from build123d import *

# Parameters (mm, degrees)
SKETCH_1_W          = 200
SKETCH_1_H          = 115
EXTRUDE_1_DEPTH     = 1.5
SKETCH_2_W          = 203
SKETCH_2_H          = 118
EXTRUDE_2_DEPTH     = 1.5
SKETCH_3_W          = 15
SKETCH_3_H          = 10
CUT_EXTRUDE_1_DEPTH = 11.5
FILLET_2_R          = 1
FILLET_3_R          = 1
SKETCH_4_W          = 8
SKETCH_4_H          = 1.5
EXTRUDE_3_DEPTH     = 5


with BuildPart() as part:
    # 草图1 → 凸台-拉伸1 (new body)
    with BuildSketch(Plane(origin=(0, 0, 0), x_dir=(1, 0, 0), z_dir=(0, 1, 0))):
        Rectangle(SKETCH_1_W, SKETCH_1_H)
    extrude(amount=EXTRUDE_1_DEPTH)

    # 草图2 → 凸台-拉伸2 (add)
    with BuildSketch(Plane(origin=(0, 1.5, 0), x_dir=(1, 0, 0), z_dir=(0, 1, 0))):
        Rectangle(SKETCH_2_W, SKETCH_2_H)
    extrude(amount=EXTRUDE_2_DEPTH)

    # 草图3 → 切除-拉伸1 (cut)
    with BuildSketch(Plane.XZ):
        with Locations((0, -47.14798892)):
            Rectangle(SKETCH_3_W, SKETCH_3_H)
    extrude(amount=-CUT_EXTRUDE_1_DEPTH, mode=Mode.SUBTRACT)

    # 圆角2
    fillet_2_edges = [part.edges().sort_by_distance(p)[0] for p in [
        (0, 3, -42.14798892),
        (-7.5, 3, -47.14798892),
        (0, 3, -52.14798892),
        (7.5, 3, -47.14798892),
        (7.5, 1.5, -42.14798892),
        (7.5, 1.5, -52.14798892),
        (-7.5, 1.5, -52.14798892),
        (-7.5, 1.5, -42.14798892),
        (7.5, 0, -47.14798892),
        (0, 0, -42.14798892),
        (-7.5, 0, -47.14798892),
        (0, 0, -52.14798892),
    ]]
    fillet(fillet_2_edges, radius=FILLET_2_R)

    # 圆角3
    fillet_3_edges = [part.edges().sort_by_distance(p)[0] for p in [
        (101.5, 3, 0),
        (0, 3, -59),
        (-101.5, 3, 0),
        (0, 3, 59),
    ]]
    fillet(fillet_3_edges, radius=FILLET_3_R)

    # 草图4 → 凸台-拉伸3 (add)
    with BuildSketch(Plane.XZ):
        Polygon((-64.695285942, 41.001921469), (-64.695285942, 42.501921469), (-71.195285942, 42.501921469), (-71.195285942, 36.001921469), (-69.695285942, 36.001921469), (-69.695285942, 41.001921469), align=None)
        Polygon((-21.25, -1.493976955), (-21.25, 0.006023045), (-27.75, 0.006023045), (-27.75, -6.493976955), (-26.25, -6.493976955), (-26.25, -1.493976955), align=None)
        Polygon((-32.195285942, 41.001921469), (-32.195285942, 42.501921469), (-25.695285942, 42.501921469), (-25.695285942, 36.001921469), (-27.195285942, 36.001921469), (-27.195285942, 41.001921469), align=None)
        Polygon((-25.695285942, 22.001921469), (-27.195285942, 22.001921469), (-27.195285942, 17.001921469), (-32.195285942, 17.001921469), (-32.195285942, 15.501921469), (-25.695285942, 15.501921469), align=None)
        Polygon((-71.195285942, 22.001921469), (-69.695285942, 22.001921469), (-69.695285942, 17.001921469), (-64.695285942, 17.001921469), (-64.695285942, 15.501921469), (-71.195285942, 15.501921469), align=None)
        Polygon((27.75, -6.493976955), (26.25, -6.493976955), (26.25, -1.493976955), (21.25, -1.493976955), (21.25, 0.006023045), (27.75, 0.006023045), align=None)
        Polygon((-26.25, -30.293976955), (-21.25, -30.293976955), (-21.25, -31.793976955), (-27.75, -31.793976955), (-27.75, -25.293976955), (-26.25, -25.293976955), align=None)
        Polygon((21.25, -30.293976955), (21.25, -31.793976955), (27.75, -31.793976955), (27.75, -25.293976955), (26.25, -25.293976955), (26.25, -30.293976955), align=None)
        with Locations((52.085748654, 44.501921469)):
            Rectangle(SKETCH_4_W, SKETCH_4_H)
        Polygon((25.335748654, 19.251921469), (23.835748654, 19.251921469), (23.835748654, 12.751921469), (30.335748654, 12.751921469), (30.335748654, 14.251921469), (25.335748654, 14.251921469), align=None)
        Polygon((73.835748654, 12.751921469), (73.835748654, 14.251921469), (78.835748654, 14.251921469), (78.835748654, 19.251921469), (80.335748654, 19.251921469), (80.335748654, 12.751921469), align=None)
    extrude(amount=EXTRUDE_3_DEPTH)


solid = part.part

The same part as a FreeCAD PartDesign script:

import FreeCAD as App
import Part
import Sketcher


def edges_at(feature, points):
    """Names of the edges that pass closest to the given points."""
    edges = feature.Shape.Edges
    near = lambda p: min(range(len(edges)), key=lambda i: edges[i].distToShape(Part.Vertex(*p))[0])
    return sorted({f"Edge{near(p) + 1}" for p in points})


def add_polygon(sketch, points):
    """Adds a closed chain of lines whose ends are joined by coincident constraints."""
    first, n = sketch.GeometryCount, len(points)
    for a, b in zip(points, points[1:] + points[:1]):
        sketch.addGeometry(Part.LineSegment(App.Vector(*a, 0), App.Vector(*b, 0)), False)
    for i in range(n):
        sketch.addConstraint(Sketcher.Constraint("Coincident", first + i, 2, first + (i + 1) % n, 1))

doc = App.newDocument("Part")
body = doc.addObject("PartDesign::Body", "Body")

# Sketch on XZ plane
sketch1 = body.newObject("Sketcher::SketchObject", "Sketch")
sketch1.AttachmentSupport = (doc.getObject("XZ_Plane"), [""])
sketch1.MapMode = "FlatFace"
add_polygon(sketch1, [(-100, -57.5), (-100, 57.5), (100, 57.5), (100, -57.5)])  # lines 0-3
sketch1.addConstraint(Sketcher.Constraint("Vertical", 0))
sketch1.addConstraint(Sketcher.Constraint("Horizontal", 1))
sketch1.addConstraint(Sketcher.Constraint("Vertical", 2))
sketch1.addConstraint(Sketcher.Constraint("Horizontal", 3))
sketch1.addConstraint(Sketcher.Constraint("Symmetric", 0, 2, 2, 2, -1, 1))
sketch1.addConstraint(Sketcher.Constraint("DistanceX", 1, 1, 1, 2, 200.0))
sketch1.addConstraint(Sketcher.Constraint("DistanceY", 0, 1, 0, 2, 115.0))
pad1 = body.newObject("PartDesign::Pad", "Pad")
pad1.Profile = sketch1
pad1.Length = 1.5
pad1.Reversed = True

# Sketch on XZ plane
sketch2 = body.newObject("Sketcher::SketchObject", "Sketch001")
sketch2.AttachmentSupport = (doc.getObject("XZ_Plane"), [""])
sketch2.MapMode = "FlatFace"
sketch2.AttachmentOffset = App.Placement(App.Vector(0, 0, -1.5), App.Rotation())
add_polygon(sketch2, [(-101.5, -59), (-101.5, 59), (101.5, 59), (101.5, -59)])  # lines 0-3
sketch2.addConstraint(Sketcher.Constraint("Vertical", 0))
sketch2.addConstraint(Sketcher.Constraint("Horizontal", 1))
sketch2.addConstraint(Sketcher.Constraint("Vertical", 2))
sketch2.addConstraint(Sketcher.Constraint("Horizontal", 3))
sketch2.addConstraint(Sketcher.Constraint("Symmetric", 0, 2, 2, 2, -1, 1))
sketch2.addConstraint(Sketcher.Constraint("DistanceX", 1, 1, 1, 2, 203.0))
sketch2.addConstraint(Sketcher.Constraint("DistanceY", 0, 1, 0, 2, 118.0))
pad2 = body.newObject("PartDesign::Pad", "Pad001")
pad2.Profile = sketch2
pad2.Length = 1.5
pad2.Reversed = True

# Sketch on XZ plane
sketch3 = body.newObject("Sketcher::SketchObject", "Sketch002")
sketch3.AttachmentSupport = (doc.getObject("XZ_Plane"), [""])
sketch3.MapMode = "FlatFace"
add_polygon(sketch3, [(-7.5, -42.147989), (-7.5, -52.147989), (7.5, -52.147989), (7.5, -42.147989)])  # lines 0-3
sketch3.addConstraint(Sketcher.Constraint("Vertical", 0))
sketch3.addConstraint(Sketcher.Constraint("Horizontal", 1))
sketch3.addConstraint(Sketcher.Constraint("Vertical", 2))
sketch3.addConstraint(Sketcher.Constraint("Horizontal", 3))
sketch3.addConstraint(Sketcher.Constraint("DistanceX", 1, 1, 1, 2, 15.0))
sketch3.addConstraint(Sketcher.Constraint("DistanceY", 0, 2, 0, 1, 10.0))
sketch3.addConstraint(Sketcher.Constraint("DistanceX", 0, 2, -1, 1, 7.5))
sketch3.addConstraint(Sketcher.Constraint("DistanceY", 0, 2, -1, 1, 52.147989))
pocket1 = body.newObject("PartDesign::Pocket", "Pocket")
pocket1.Profile = sketch3
pocket1.Length = 11.5
doc.recompute()

fillet = body.newObject("PartDesign::Fillet", "Fillet")
fillet.Base = (pocket1, edges_at(pocket1, [
    (0, 3, -42.148),
    (-7.5, 3, -47.148),
    (0, 3, -52.148),
    (7.5, 3, -47.148),
    (7.5, 1.5, -42.148),
    (7.5, 1.5, -52.148),
    (-7.5, 1.5, -52.148),
    (-7.5, 1.5, -42.148),
    (7.5, 0, -47.148),
    (0, 0, -42.148),
    (-7.5, 0, -47.148),
    (0, 0, -52.148),
]))
fillet.Radius = 1
doc.recompute()

fillet2 = body.newObject("PartDesign::Fillet", "Fillet001")
fillet2.Base = (fillet, edges_at(fillet, [
    (101.5, 3, 0),
    (0, 3, -59),
    (-101.5, 3, 0),
    (0, 3, 59),
]))
fillet2.Radius = 1

# Sketch on XZ plane
sketch4 = body.newObject("Sketcher::SketchObject", "Sketch003")
sketch4.AttachmentSupport = (doc.getObject("XZ_Plane"), [""])
sketch4.MapMode = "FlatFace"
add_polygon(sketch4, [(-64.695286, 41.001921), (-64.695286, 42.501921), (-71.195286, 42.501921), (-71.195286, 36.001921), (-69.695286, 36.001921), (-69.695286, 41.001921)])  # lines 0-5
add_polygon(sketch4, [(-21.25, -1.493977), (-21.25, 0.006023), (-27.75, 0.006023), (-27.75, -6.493977), (-26.25, -6.493977), (-26.25, -1.493977)])  # lines 6-11
add_polygon(sketch4, [(-32.195286, 42.501921), (-32.195286, 41.001921), (-27.195286, 41.001921), (-27.195286, 36.001921), (-25.695286, 36.001921), (-25.695286, 42.501921)])  # lines 12-17
add_polygon(sketch4, [(-25.695286, 22.001921), (-27.195286, 22.001921), (-27.195286, 17.001921), (-32.195286, 17.001921), (-32.195286, 15.501921), (-25.695286, 15.501921)])  # lines 18-23
add_polygon(sketch4, [(-69.695286, 22.001921), (-71.195286, 22.001921), (-71.195286, 15.501921), (-64.695286, 15.501921), (-64.695286, 17.001921), (-69.695286, 17.001921)])  # lines 24-29
add_polygon(sketch4, [(26.25, -6.493977), (27.75, -6.493977), (27.75, 0.006023), (21.25, 0.006023), (21.25, -1.493977), (26.25, -1.493977)])  # lines 30-35
add_polygon(sketch4, [(-21.25, -30.293977), (-26.25, -30.293977), (-26.25, -25.293977), (-27.75, -25.293977), (-27.75, -31.793977), (-21.25, -31.793977)])  # lines 36-41
add_polygon(sketch4, [(21.25, -30.293977), (21.25, -31.793977), (27.75, -31.793977), (27.75, -25.293977), (26.25, -25.293977), (26.25, -30.293977)])  # lines 42-47
add_polygon(sketch4, [(48.085749, 45.251921), (48.085749, 43.751921), (56.085749, 43.751921), (56.085749, 45.251921)])  # lines 48-51
add_polygon(sketch4, [(25.335749, 19.251921), (23.835749, 19.251921), (23.835749, 12.751921), (30.335749, 12.751921), (30.335749, 14.251921), (25.335749, 14.251921)])  # lines 52-57
add_polygon(sketch4, [(73.835749, 14.251921), (73.835749, 12.751921), (80.335749, 12.751921), (80.335749, 19.251921), (78.835749, 19.251921), (78.835749, 14.251921)])  # lines 58-63
sketch4.addConstraint(Sketcher.Constraint("Vertical", 0))
sketch4.addConstraint(Sketcher.Constraint("Horizontal", 1))
sketch4.addConstraint(Sketcher.Constraint("Vertical", 2))
sketch4.addConstraint(Sketcher.Constraint("Horizontal", 3))
sketch4.addConstraint(Sketcher.Constraint("Vertical", 4))
sketch4.addConstraint(Sketcher.Constraint("Horizontal", 5))
sketch4.addConstraint(Sketcher.Constraint("Vertical", 6))
sketch4.addConstraint(Sketcher.Constraint("Horizontal", 7))
sketch4.addConstraint(Sketcher.Constraint("Vertical", 8))
sketch4.addConstraint(Sketcher.Constraint("Horizontal", 9))
sketch4.addConstraint(Sketcher.Constraint("Vertical", 10))
sketch4.addConstraint(Sketcher.Constraint("Horizontal", 11))
sketch4.addConstraint(Sketcher.Constraint("Vertical", 12))
sketch4.addConstraint(Sketcher.Constraint("Horizontal", 13))
sketch4.addConstraint(Sketcher.Constraint("Vertical", 14))
sketch4.addConstraint(Sketcher.Constraint("Horizontal", 15))
sketch4.addConstraint(Sketcher.Constraint("Vertical", 16))
sketch4.addConstraint(Sketcher.Constraint("Horizontal", 17))
sketch4.addConstraint(Sketcher.Constraint("Horizontal", 18))
sketch4.addConstraint(Sketcher.Constraint("Vertical", 19))
sketch4.addConstraint(Sketcher.Constraint("Horizontal", 20))
sketch4.addConstraint(Sketcher.Constraint("Vertical", 21))
sketch4.addConstraint(Sketcher.Constraint("Horizontal", 22))
sketch4.addConstraint(Sketcher.Constraint("Vertical", 23))
sketch4.addConstraint(Sketcher.Constraint("Horizontal", 24))
sketch4.addConstraint(Sketcher.Constraint("Vertical", 25))
sketch4.addConstraint(Sketcher.Constraint("Horizontal", 26))
sketch4.addConstraint(Sketcher.Constraint("Vertical", 27))
sketch4.addConstraint(Sketcher.Constraint("Horizontal", 28))
sketch4.addConstraint(Sketcher.Constraint("Vertical", 29))
sketch4.addConstraint(Sketcher.Constraint("Horizontal", 30))
sketch4.addConstraint(Sketcher.Constraint("Vertical", 31))
sketch4.addConstraint(Sketcher.Constraint("Horizontal", 32))
sketch4.addConstraint(Sketcher.Constraint("Vertical", 33))
sketch4.addConstraint(Sketcher.Constraint("Horizontal", 34))
sketch4.addConstraint(Sketcher.Constraint("Vertical", 35))
sketch4.addConstraint(Sketcher.Constraint("Horizontal", 36))
sketch4.addConstraint(Sketcher.Constraint("Vertical", 37))
sketch4.addConstraint(Sketcher.Constraint("Horizontal", 38))
sketch4.addConstraint(Sketcher.Constraint("Vertical", 39))
sketch4.addConstraint(Sketcher.Constraint("Horizontal", 40))
sketch4.addConstraint(Sketcher.Constraint("Vertical", 41))
sketch4.addConstraint(Sketcher.Constraint("Vertical", 42))
sketch4.addConstraint(Sketcher.Constraint("Horizontal", 43))
sketch4.addConstraint(Sketcher.Constraint("Vertical", 44))
sketch4.addConstraint(Sketcher.Constraint("Horizontal", 45))
sketch4.addConstraint(Sketcher.Constraint("Vertical", 46))
sketch4.addConstraint(Sketcher.Constraint("Horizontal", 47))
sketch4.addConstraint(Sketcher.Constraint("Vertical", 48))
sketch4.addConstraint(Sketcher.Constraint("Horizontal", 49))
sketch4.addConstraint(Sketcher.Constraint("Vertical", 50))
sketch4.addConstraint(Sketcher.Constraint("Horizontal", 51))
sketch4.addConstraint(Sketcher.Constraint("Horizontal", 52))
sketch4.addConstraint(Sketcher.Constraint("Vertical", 53))
sketch4.addConstraint(Sketcher.Constraint("Horizontal", 54))
sketch4.addConstraint(Sketcher.Constraint("Vertical", 55))
sketch4.addConstraint(Sketcher.Constraint("Horizontal", 56))
sketch4.addConstraint(Sketcher.Constraint("Vertical", 57))
sketch4.addConstraint(Sketcher.Constraint("Vertical", 58))
sketch4.addConstraint(Sketcher.Constraint("Horizontal", 59))
sketch4.addConstraint(Sketcher.Constraint("Vertical", 60))
sketch4.addConstraint(Sketcher.Constraint("Horizontal", 61))
sketch4.addConstraint(Sketcher.Constraint("Vertical", 62))
sketch4.addConstraint(Sketcher.Constraint("Horizontal", 63))
sketch4.addConstraint(Sketcher.Constraint("Symmetric", 8, 2, 30, 2, -2))
sketch4.addConstraint(Sketcher.Constraint("Symmetric", 6, 2, 32, 2, -2))
sketch4.addConstraint(Sketcher.Constraint("Symmetric", 10, 2, 34, 2, -2))
sketch4.addConstraint(Sketcher.Constraint("Symmetric", 40, 2, 42, 2, -2))
sketch4.addConstraint(Sketcher.Constraint("Symmetric", 38, 2, 44, 2, -2))
sketch4.addConstraint(Sketcher.Constraint("Symmetric", 36, 2, 46, 2, -2))
sketch4.addConstraint(Sketcher.Constraint("Horizontal", 5, 2, 12, 2))
sketch4.addConstraint(Sketcher.Constraint("Horizontal", 3, 2, 14, 2))
sketch4.addConstraint(Sketcher.Constraint("Horizontal", 1, 2, 16, 2))
sketch4.addConstraint(Sketcher.Constraint("Horizontal", 23, 2, 24, 2))
sketch4.addConstraint(Sketcher.Constraint("Horizontal", 22, 2, 25, 2))
sketch4.addConstraint(Sketcher.Constraint("Horizontal", 20, 2, 27, 2))
sketch4.addConstraint(Sketcher.Constraint("Horizontal", 54, 2, 58, 2))
sketch4.addConstraint(Sketcher.Constraint("Horizontal", 57, 2, 60, 2))
sketch4.addConstraint(Sketcher.Constraint("Horizontal", 56, 2, 62, 2))
sketch4.addConstraint(Sketcher.Constraint("Vertical", 14, 2, 18, 2))
sketch4.addConstraint(Sketcher.Constraint("Vertical", 17, 2, 20, 2))
sketch4.addConstraint(Sketcher.Constraint("Vertical", 16, 2, 22, 2))
sketch4.addConstraint(Sketcher.Constraint("Vertical", 2, 2, 24, 2))
sketch4.addConstraint(Sketcher.Constraint("Vertical", 5, 2, 26, 2))
sketch4.addConstraint(Sketcher.Constraint("Vertical", 4, 2, 28, 2))
sketch4.addConstraint(Sketcher.Constraint("Vertical", 10, 2, 36, 2))
sketch4.addConstraint(Sketcher.Constraint("Vertical", 8, 2, 38, 2))
sketch4.addConstraint(Sketcher.Constraint("Vertical", 11, 2, 40, 2))
sketch4.addConstraint(Sketcher.Constraint("Equal", 1, 7))
sketch4.addConstraint(Sketcher.Constraint("Equal", 3, 9))
sketch4.addConstraint(Sketcher.Constraint("Equal", 11, 13))
sketch4.addConstraint(Sketcher.Constraint("Equal", 9, 15))
sketch4.addConstraint(Sketcher.Constraint("Equal", 45, 52))
sketch4.addConstraint(Sketcher.Constraint("Equal", 43, 54))
sketch4.addConstraint(Sketcher.Constraint("Equal", 54, 59))
sketch4.addConstraint(Sketcher.Constraint("Equal", 52, 61))
sketch4.addConstraint(Sketcher.Constraint("Equal", 61, 0))
sketch4.addConstraint(Sketcher.Constraint("Equal", 59, 2))
sketch4.addConstraint(Sketcher.Constraint("Equal", 0, 6))
sketch4.addConstraint(Sketcher.Constraint("Equal", 2, 8))
sketch4.addConstraint(Sketcher.Constraint("Equal", 14, 19))
sketch4.addConstraint(Sketcher.Constraint("Equal", 12, 21))
sketch4.addConstraint(Sketcher.Constraint("Equal", 35, 37))
sketch4.addConstraint(Sketcher.Constraint("Equal", 31, 39))
sketch4.addConstraint(Sketcher.Constraint("Equal", 42, 48))
sketch4.addConstraint(Sketcher.Constraint("Equal", 44, 53))
sketch4.addConstraint(Sketcher.Constraint("Equal", 50, 55))
sketch4.addConstraint(Sketcher.Constraint("DistanceX", 5, 1, 5, 2, 5.0))
sketch4.addConstraint(Sketcher.Constraint("DistanceX", 49, 1, 49, 2, 8.0))
sketch4.addConstraint(Sketcher.Constraint("DistanceX", 1, 2, 1, 1, 6.5))
sketch4.addConstraint(Sketcher.Constraint("DistanceX", 6, 2, -1, 1, 21.25))
sketch4.addConstraint(Sketcher.Constraint("DistanceY", -1, 1, 0, 2, 42.501921))
sketch4.addConstraint(Sketcher.Constraint("DistanceY", -1, 1, 18, 2, 22.001921))
sketch4.addConstraint(Sketcher.Constraint("DistanceX", -1, 1, 48, 2, 48.085749))
sketch4.addConstraint(Sketcher.Constraint("DistanceY", -1, 1, 48, 2, 43.751921))
sketch4.addConstraint(Sketcher.Constraint("DistanceX", -1, 1, 52, 2, 23.835749))
sketch4.addConstraint(Sketcher.Constraint("DistanceY", -1, 1, 52, 2, 19.251921))
sketch4.addConstraint(Sketcher.Constraint("DistanceX", -1, 1, 58, 2, 73.835749))
sketch4.addConstraint(Sketcher.Constraint("DistanceX", 0, 2, -1, 1, 64.695286))
sketch4.addConstraint(Sketcher.Constraint("DistanceY", -1, 1, 6, 2, 0.006023))
sketch4.addConstraint(Sketcher.Constraint("DistanceX", 12, 2, -1, 1, 32.195286))
sketch4.addConstraint(Sketcher.Constraint("DistanceY", 36, 2, -1, 1, 30.293977))
pad3 = body.newObject("PartDesign::Pad", "Pad002")
pad3.Profile = sketch4
pad3.Length = 5

doc.recompute()
